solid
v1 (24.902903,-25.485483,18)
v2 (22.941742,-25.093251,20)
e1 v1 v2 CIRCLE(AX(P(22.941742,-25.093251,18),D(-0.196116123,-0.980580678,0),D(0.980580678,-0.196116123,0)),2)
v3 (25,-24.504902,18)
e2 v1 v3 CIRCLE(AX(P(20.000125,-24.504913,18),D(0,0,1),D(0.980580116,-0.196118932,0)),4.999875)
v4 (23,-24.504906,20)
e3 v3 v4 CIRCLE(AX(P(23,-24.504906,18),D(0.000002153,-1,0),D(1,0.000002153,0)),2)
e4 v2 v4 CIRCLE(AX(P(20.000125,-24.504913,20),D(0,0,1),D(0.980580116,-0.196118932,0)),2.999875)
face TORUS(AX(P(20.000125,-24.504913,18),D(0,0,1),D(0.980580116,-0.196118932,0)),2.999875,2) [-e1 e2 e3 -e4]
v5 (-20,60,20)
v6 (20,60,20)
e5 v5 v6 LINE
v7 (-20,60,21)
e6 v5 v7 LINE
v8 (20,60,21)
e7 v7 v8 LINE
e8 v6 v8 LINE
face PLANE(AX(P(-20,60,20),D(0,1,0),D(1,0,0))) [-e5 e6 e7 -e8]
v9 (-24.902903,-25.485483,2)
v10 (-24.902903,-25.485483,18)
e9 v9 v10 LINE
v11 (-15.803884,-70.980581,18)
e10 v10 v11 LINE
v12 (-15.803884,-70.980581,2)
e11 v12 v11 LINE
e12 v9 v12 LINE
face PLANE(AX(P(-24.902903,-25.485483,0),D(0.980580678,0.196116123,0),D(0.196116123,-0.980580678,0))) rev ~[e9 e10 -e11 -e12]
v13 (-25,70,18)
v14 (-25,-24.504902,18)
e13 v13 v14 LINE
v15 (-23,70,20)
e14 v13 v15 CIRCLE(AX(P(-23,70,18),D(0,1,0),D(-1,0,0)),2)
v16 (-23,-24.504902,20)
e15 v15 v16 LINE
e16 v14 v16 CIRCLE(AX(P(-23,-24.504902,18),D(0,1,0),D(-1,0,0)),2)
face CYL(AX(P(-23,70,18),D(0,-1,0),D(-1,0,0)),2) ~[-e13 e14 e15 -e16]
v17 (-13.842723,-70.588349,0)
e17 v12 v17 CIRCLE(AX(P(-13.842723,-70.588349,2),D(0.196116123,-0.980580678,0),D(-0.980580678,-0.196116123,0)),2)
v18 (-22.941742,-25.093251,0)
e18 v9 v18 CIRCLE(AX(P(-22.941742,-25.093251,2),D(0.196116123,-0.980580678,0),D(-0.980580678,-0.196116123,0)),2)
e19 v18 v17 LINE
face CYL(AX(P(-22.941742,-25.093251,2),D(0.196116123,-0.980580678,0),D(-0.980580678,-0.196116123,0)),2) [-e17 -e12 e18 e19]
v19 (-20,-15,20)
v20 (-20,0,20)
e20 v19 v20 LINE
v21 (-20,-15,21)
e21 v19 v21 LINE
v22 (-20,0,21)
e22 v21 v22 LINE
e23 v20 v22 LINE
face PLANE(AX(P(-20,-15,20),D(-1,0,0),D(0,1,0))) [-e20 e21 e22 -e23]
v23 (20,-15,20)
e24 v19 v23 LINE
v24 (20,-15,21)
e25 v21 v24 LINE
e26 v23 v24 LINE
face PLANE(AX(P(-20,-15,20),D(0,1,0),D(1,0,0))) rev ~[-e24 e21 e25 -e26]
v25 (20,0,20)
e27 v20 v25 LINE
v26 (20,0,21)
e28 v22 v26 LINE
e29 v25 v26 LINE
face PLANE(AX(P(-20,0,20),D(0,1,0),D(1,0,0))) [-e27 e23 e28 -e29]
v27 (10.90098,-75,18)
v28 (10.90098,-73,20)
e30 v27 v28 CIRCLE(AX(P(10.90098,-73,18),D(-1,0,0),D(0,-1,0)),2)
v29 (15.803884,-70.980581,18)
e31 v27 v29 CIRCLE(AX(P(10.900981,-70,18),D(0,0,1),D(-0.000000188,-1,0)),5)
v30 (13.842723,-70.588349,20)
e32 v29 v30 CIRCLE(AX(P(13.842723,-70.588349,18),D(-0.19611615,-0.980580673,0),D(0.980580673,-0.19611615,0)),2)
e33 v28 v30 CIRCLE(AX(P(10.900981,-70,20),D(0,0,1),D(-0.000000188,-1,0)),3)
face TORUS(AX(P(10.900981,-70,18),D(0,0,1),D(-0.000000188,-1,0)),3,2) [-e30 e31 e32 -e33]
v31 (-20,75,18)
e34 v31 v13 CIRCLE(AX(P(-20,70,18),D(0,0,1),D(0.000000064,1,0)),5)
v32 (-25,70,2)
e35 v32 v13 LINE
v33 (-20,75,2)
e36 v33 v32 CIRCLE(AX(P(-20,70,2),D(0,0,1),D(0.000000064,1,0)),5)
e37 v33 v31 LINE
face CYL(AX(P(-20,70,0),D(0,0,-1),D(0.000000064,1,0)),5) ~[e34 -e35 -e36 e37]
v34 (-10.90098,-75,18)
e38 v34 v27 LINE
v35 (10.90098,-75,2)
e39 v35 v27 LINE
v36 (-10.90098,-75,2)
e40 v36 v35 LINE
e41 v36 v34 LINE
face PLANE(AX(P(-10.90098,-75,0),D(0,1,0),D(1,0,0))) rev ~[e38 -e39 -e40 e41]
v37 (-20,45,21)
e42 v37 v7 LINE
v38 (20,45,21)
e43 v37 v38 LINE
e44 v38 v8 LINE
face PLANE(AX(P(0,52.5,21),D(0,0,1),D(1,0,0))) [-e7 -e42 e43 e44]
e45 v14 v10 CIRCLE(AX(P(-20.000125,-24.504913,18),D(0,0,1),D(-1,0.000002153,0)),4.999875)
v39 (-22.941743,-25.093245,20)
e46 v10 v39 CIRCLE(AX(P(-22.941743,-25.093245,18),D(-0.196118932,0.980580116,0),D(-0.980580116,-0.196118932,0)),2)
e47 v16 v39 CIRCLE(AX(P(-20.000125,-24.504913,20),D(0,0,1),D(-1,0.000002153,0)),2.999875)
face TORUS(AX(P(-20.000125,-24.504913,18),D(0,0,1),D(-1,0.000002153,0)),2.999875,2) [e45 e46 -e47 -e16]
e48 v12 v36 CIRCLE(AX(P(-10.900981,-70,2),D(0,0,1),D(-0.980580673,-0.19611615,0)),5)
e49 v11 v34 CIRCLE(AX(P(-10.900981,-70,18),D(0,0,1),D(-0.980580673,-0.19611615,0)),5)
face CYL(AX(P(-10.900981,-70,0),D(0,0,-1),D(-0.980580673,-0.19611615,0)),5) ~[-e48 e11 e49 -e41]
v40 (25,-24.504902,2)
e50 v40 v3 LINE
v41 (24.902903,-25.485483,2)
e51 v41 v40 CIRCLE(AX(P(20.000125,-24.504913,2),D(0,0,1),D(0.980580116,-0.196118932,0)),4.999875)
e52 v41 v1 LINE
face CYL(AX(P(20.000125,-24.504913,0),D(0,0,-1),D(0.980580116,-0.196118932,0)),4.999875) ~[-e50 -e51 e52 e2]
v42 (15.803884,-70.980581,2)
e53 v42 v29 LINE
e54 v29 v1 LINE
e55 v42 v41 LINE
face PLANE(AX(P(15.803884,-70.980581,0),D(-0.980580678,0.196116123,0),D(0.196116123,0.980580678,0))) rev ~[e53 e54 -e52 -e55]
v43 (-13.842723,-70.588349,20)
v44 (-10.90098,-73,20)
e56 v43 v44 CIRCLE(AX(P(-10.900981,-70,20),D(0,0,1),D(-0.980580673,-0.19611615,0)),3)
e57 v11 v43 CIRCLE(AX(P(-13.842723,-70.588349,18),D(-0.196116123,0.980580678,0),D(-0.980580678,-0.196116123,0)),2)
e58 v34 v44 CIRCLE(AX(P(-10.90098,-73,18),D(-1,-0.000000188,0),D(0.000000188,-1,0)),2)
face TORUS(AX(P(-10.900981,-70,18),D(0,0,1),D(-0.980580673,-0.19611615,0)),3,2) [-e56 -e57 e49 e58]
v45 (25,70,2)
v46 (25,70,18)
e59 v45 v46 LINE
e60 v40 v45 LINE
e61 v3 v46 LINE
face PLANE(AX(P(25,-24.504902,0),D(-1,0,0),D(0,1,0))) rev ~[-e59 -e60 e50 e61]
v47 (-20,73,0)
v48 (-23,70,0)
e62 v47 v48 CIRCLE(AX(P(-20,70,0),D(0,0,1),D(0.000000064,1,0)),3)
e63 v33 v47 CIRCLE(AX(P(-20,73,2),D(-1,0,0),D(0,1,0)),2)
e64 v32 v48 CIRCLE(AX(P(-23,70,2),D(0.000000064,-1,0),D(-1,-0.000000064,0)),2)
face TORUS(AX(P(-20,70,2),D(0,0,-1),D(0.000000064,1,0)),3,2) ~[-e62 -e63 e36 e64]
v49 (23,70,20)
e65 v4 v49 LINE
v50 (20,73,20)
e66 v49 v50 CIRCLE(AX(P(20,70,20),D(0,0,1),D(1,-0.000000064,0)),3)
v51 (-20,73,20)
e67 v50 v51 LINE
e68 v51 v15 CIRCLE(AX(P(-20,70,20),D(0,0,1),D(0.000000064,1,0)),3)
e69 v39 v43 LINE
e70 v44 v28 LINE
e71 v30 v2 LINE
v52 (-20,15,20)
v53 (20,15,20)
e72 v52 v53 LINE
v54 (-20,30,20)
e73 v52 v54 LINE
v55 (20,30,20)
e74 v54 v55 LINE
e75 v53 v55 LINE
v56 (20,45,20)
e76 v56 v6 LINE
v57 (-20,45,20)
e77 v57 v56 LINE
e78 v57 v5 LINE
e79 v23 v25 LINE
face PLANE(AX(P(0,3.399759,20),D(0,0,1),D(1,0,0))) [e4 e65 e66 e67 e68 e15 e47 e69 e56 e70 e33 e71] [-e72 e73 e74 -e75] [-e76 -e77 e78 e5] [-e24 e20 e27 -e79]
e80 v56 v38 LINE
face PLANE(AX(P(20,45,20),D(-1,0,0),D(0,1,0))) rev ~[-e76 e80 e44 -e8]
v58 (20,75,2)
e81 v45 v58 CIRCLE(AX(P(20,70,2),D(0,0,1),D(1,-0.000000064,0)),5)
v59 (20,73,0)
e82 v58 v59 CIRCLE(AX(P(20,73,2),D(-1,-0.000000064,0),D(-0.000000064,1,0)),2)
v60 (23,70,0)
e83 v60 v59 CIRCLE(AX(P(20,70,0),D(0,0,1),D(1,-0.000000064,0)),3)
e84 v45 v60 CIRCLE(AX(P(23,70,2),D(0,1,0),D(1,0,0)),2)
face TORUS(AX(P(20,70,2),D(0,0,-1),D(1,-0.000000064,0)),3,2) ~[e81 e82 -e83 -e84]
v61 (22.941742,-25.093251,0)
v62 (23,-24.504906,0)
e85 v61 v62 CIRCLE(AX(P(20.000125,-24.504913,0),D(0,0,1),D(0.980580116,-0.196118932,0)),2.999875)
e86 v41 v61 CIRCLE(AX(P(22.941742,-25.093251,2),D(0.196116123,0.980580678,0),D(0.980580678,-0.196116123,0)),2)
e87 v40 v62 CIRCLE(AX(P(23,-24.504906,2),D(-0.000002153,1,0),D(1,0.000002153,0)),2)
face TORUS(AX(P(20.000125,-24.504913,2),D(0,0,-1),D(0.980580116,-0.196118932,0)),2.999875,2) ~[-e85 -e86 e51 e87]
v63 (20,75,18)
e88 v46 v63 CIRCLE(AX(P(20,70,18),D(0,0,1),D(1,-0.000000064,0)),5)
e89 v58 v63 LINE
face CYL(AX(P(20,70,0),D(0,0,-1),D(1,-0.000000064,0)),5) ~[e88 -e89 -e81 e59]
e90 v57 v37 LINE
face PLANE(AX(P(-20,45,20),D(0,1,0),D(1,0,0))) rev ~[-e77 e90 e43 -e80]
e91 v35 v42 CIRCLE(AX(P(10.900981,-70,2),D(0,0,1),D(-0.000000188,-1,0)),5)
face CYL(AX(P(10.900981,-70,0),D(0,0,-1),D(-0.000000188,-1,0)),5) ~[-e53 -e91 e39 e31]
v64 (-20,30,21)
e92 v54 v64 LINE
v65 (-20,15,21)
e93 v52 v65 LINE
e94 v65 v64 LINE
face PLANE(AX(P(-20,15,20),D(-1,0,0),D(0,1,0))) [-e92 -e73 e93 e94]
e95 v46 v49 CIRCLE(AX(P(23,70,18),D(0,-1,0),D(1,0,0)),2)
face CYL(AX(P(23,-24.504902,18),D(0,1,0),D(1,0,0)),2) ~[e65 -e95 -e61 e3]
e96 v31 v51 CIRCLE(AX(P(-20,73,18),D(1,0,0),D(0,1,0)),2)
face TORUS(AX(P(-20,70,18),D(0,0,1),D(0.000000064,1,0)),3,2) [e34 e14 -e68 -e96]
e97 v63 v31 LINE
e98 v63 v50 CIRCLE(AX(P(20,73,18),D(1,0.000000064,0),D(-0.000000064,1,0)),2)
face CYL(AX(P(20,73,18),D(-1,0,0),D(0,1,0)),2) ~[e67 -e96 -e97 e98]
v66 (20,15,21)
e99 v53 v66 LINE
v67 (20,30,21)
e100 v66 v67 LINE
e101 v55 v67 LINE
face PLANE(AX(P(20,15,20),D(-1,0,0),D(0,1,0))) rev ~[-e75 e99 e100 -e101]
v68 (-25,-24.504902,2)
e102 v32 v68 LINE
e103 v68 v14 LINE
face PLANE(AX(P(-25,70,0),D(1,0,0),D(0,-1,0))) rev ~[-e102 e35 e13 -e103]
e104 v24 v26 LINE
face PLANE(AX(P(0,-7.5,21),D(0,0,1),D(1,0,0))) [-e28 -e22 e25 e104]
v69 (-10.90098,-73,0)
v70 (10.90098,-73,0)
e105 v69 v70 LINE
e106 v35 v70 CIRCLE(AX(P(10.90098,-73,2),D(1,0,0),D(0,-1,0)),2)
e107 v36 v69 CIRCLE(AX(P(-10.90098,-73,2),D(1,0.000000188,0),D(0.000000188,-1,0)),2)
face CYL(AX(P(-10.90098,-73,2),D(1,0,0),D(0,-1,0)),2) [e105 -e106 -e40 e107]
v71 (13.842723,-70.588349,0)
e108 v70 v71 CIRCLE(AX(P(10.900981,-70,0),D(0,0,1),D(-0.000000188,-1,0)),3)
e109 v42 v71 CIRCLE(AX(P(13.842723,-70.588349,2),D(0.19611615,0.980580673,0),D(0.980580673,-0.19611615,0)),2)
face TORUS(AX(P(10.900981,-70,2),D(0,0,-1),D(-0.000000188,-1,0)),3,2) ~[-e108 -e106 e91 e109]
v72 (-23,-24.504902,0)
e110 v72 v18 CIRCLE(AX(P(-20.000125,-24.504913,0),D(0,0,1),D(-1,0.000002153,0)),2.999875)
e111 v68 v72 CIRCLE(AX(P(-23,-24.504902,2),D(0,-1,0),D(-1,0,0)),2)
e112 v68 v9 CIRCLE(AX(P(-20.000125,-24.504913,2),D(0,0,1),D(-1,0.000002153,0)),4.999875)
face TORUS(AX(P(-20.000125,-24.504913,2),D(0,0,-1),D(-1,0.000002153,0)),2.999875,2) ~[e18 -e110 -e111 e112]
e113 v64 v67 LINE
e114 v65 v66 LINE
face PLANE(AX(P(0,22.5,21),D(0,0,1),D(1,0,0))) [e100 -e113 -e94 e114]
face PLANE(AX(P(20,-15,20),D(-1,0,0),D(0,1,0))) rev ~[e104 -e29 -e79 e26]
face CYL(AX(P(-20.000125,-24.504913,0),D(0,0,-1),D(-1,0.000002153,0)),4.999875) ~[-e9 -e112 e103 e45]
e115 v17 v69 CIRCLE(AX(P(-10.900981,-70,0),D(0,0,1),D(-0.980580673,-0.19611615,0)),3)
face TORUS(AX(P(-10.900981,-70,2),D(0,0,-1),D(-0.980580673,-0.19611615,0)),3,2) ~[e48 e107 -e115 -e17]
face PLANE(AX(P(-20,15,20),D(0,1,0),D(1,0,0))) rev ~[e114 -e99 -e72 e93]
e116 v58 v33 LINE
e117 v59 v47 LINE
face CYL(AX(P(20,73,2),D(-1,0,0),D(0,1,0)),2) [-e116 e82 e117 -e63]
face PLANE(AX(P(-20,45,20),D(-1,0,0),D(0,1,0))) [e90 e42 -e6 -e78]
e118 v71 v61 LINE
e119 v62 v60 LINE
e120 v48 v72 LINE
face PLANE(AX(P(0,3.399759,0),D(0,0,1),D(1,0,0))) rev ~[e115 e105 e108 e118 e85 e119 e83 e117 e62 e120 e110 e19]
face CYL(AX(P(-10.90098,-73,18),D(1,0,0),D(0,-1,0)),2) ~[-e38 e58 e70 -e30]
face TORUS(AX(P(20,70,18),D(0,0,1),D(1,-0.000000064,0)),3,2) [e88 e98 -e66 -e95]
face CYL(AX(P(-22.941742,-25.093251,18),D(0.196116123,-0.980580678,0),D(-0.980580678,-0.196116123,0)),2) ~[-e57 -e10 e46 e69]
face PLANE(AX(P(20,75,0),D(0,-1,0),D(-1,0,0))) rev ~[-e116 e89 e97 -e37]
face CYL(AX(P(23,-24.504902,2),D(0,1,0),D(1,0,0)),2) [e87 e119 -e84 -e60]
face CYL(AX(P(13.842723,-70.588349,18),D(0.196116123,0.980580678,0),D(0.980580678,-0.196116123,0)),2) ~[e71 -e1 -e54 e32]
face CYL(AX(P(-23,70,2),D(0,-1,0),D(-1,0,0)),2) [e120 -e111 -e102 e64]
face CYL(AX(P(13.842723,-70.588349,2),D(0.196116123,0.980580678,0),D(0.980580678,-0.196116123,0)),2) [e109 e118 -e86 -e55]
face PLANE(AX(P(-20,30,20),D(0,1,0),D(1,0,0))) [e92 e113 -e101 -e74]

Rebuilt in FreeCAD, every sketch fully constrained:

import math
import FreeCAD as App
import Part
import Sketcher
from FreeCAD import Vector


def edges_at(feature, points):
    """Names of the edges that pass closest to the given points."""
    edges = feature.Shape.Edges
    near = lambda p: min(range(len(edges)), key=lambda i: edges[i].distToShape(Part.Vertex(*p))[0])
    return sorted({f"Edge{near(p) + 1}" for p in points})


def add_polygon(sketch, points):
    """Adds a closed chain of lines whose ends are joined by coincident constraints."""
    first, n = sketch.GeometryCount, len(points)
    for a, b in zip(points, points[1:] + points[:1]):
        sketch.addGeometry(Part.LineSegment(App.Vector(*a, 0), App.Vector(*b, 0)), False)
    for i in range(n):
        sketch.addConstraint(Sketcher.Constraint("Coincident", first + i, 2, first + (i + 1) % n, 1))

doc = App.newDocument("Part")
body = doc.addObject("PartDesign::Body", "Body")

# Sketch on XY plane
sketch1 = body.newObject("Sketcher::SketchObject", "Sketch")
sketch1.AttachmentSupport = (doc.getObject("XY_Plane"), [""])
sketch1.MapMode = "FlatFace"
sketch1.addGeometry(Part.LineSegment(Vector(20, 75, 0), Vector(-20, 75, 0)), False)
sketch1.addGeometry(Part.ArcOfCircle(Part.Circle(Vector(-20, 70, 0), Vector(0, 0, 1), 5), math.radians(90), math.radians(180)), False)
sketch1.addGeometry(Part.LineSegment(Vector(-25, 70, 0), Vector(-25, -24.5, 0)), False)
sketch1.addGeometry(Part.ArcOfCircle(Part.Circle(Vector(-20, -24.5, 0), Vector(0, 0, 1), 5), math.radians(180), math.radians(191.31)), False)
sketch1.addGeometry(Part.LineSegment(Vector(-24.9, -25.5, 0), Vector(-15.8, -71, 0)), False)
sketch1.addGeometry(Part.ArcOfCircle(Part.Circle(Vector(-10.9, -70, 0), Vector(0, 0, 1), 5), math.radians(-169), math.radians(-90)), False)
sketch1.addGeometry(Part.LineSegment(Vector(-10.9, -75, 0), Vector(10.9, -75, 0)), False)
sketch1.addGeometry(Part.ArcOfCircle(Part.Circle(Vector(10.9, -70, 0), Vector(0, 0, 1), 5), math.radians(-90), math.radians(-11)), False)
sketch1.addGeometry(Part.LineSegment(Vector(15.8, -71, 0), Vector(24.9, -25.5, 0)), False)
sketch1.addGeometry(Part.ArcOfCircle(Part.Circle(Vector(20, -24.5, 0), Vector(0, 0, 1), 5), math.radians(-11.31), math.radians(0)), False)
sketch1.addGeometry(Part.LineSegment(Vector(25, -24.5, 0), Vector(25, 70, 0)), False)
sketch1.addGeometry(Part.ArcOfCircle(Part.Circle(Vector(20, 70, 0), Vector(0, 0, 1), 5), math.radians(0), math.radians(90)), False)
sketch1.addConstraint(Sketcher.Constraint("Tangent", 0, 2, 1, 1))
sketch1.addConstraint(Sketcher.Constraint("Tangent", 1, 2, 2, 1))
sketch1.addConstraint(Sketcher.Constraint("Coincident", 2, 2, 3, 1))
sketch1.addConstraint(Sketcher.Constraint("Coincident", 3, 2, 4, 1))
sketch1.addConstraint(Sketcher.Constraint("Tangent", 4, 2, 5, 1))
sketch1.addConstraint(Sketcher.Constraint("Tangent", 5, 2, 6, 1))
sketch1.addConstraint(Sketcher.Constraint("Tangent", 6, 2, 7, 1))
sketch1.addConstraint(Sketcher.Constraint("Tangent", 7, 2, 8, 1))
sketch1.addConstraint(Sketcher.Constraint("Coincident", 8, 2, 9, 1))
sketch1.addConstraint(Sketcher.Constraint("Coincident", 9, 2, 10, 1))
sketch1.addConstraint(Sketcher.Constraint("Tangent", 10, 2, 11, 1))
sketch1.addConstraint(Sketcher.Constraint("Tangent", 11, 2, 0, 1))
sketch1.addConstraint(Sketcher.Constraint("Horizontal", 0))
sketch1.addConstraint(Sketcher.Constraint("Vertical", 2))
sketch1.addConstraint(Sketcher.Constraint("Horizontal", 6))
sketch1.addConstraint(Sketcher.Constraint("Vertical", 10))
sketch1.addConstraint(Sketcher.Constraint("Equal", 1, 5))
sketch1.addConstraint(Sketcher.Constraint("Equal", 5, 7))
sketch1.addConstraint(Sketcher.Constraint("Equal", 3, 9))
sketch1.addConstraint(Sketcher.Constraint("Equal", 7, 11))
sketch1.addConstraint(Sketcher.Constraint("Symmetric", 3, 3, 9, 3, -2))
sketch1.addConstraint(Sketcher.Constraint("Horizontal", 4, 2, 7, 2))
sketch1.addConstraint(Sketcher.Constraint("Horizontal", 3, 2, 8, 2))
sketch1.addConstraint(Sketcher.Constraint("Horizontal", 2, 2, 9, 2))
sketch1.addConstraint(Sketcher.Constraint("Radius", 1, 5.0))
sketch1.addConstraint(Sketcher.Constraint("DistanceX", 0, 2, 0, 1, 40.0))
sketch1.addConstraint(Sketcher.Constraint("DistanceY", -1, 1, 1, 3, 70.0))
sketch1.addConstraint(Sketcher.Constraint("DistanceY", 5, 3, -1, 1, 70.0))
sketch1.addConstraint(Sketcher.Constraint("DistanceY", 2, 2, 2, 1, 94.504902))
sketch1.addConstraint(Sketcher.Constraint("Radius", 3, 4.999875))
sketch1.addConstraint(Sketcher.Constraint("DistanceX", 6, 1, 6, 2, 21.80196))
sketch1.addConstraint(Sketcher.Constraint("DistanceY", 7, 2, 8, 2, 45.495098))
sketch1.addConstraint(Sketcher.Constraint("Distance", 4, 46.396078))
pad1 = body.newObject("PartDesign::Pad", "Pad")
pad1.Profile = sketch1
pad1.Length = 20
doc.recompute()

fillet = body.newObject("PartDesign::Fillet", "Fillet")
fillet.Base = (pad1, edges_at(pad1, [(-25, 22.748, 20), (-20.353, -48.233, 0)]))
fillet.Radius = 2

# Sketch on XY plane
sketch2 = body.newObject("Sketcher::SketchObject", "Sketch001")
sketch2.AttachmentSupport = (doc.getObject("XY_Plane"), [""])
sketch2.MapMode = "FlatFace"
sketch2.AttachmentOffset = App.Placement(Vector(0, 0, 20), App.Rotation())
add_polygon(sketch2, [(-20, 60), (-20, 45), (20, 45), (20, 60)])  # lines 0-3
add_polygon(sketch2, [(-20, 30), (-20, 15), (20, 15), (20, 30)])  # lines 4-7
add_polygon(sketch2, [(-20, 0), (-20, -15), (20, -15), (20, 0)])  # lines 8-11
sketch2.addConstraint(Sketcher.Constraint("Vertical", 0))
sketch2.addConstraint(Sketcher.Constraint("Horizontal", 1))
sketch2.addConstraint(Sketcher.Constraint("Vertical", 2))
sketch2.addConstraint(Sketcher.Constraint("Horizontal", 3))
sketch2.addConstraint(Sketcher.Constraint("Vertical", 4))
sketch2.addConstraint(Sketcher.Constraint("Horizontal", 5))
sketch2.addConstraint(Sketcher.Constraint("Vertical", 6))
sketch2.addConstraint(Sketcher.Constraint("Horizontal", 7))
sketch2.addConstraint(Sketcher.Constraint("Vertical", 8))
sketch2.addConstraint(Sketcher.Constraint("Horizontal", 9))
sketch2.addConstraint(Sketcher.Constraint("Vertical", 10))
sketch2.addConstraint(Sketcher.Constraint("Horizontal", 11))
sketch2.addConstraint(Sketcher.Constraint("Symmetric", 5, 2, 8, 2, -1, 1))
sketch2.addConstraint(Sketcher.Constraint("Symmetric", 10, 2, 11, 2, -1, 1))
sketch2.addConstraint(Sketcher.Constraint("Vertical", 3, 2, 4, 2))
sketch2.addConstraint(Sketcher.Constraint("Vertical", 2, 2, 5, 2))
sketch2.addConstraint(Sketcher.Constraint("Vertical", 7, 2, 8, 2))
sketch2.addConstraint(Sketcher.Constraint("Equal", 2, 4))
sketch2.addConstraint(Sketcher.Constraint("Equal", 6, 8))
sketch2.addConstraint(Sketcher.Constraint("DistanceX", 1, 1, 1, 2, 40.0))
sketch2.addConstraint(Sketcher.Constraint("DistanceY", 0, 2, 0, 1, 15.0))
sketch2.addConstraint(Sketcher.Constraint("DistanceY", -1, 1, 0, 2, 45.0))
pad2 = body.newObject("PartDesign::Pad", "Pad001")
pad2.Profile = sketch2
pad2.Length = 1

doc.recompute()
